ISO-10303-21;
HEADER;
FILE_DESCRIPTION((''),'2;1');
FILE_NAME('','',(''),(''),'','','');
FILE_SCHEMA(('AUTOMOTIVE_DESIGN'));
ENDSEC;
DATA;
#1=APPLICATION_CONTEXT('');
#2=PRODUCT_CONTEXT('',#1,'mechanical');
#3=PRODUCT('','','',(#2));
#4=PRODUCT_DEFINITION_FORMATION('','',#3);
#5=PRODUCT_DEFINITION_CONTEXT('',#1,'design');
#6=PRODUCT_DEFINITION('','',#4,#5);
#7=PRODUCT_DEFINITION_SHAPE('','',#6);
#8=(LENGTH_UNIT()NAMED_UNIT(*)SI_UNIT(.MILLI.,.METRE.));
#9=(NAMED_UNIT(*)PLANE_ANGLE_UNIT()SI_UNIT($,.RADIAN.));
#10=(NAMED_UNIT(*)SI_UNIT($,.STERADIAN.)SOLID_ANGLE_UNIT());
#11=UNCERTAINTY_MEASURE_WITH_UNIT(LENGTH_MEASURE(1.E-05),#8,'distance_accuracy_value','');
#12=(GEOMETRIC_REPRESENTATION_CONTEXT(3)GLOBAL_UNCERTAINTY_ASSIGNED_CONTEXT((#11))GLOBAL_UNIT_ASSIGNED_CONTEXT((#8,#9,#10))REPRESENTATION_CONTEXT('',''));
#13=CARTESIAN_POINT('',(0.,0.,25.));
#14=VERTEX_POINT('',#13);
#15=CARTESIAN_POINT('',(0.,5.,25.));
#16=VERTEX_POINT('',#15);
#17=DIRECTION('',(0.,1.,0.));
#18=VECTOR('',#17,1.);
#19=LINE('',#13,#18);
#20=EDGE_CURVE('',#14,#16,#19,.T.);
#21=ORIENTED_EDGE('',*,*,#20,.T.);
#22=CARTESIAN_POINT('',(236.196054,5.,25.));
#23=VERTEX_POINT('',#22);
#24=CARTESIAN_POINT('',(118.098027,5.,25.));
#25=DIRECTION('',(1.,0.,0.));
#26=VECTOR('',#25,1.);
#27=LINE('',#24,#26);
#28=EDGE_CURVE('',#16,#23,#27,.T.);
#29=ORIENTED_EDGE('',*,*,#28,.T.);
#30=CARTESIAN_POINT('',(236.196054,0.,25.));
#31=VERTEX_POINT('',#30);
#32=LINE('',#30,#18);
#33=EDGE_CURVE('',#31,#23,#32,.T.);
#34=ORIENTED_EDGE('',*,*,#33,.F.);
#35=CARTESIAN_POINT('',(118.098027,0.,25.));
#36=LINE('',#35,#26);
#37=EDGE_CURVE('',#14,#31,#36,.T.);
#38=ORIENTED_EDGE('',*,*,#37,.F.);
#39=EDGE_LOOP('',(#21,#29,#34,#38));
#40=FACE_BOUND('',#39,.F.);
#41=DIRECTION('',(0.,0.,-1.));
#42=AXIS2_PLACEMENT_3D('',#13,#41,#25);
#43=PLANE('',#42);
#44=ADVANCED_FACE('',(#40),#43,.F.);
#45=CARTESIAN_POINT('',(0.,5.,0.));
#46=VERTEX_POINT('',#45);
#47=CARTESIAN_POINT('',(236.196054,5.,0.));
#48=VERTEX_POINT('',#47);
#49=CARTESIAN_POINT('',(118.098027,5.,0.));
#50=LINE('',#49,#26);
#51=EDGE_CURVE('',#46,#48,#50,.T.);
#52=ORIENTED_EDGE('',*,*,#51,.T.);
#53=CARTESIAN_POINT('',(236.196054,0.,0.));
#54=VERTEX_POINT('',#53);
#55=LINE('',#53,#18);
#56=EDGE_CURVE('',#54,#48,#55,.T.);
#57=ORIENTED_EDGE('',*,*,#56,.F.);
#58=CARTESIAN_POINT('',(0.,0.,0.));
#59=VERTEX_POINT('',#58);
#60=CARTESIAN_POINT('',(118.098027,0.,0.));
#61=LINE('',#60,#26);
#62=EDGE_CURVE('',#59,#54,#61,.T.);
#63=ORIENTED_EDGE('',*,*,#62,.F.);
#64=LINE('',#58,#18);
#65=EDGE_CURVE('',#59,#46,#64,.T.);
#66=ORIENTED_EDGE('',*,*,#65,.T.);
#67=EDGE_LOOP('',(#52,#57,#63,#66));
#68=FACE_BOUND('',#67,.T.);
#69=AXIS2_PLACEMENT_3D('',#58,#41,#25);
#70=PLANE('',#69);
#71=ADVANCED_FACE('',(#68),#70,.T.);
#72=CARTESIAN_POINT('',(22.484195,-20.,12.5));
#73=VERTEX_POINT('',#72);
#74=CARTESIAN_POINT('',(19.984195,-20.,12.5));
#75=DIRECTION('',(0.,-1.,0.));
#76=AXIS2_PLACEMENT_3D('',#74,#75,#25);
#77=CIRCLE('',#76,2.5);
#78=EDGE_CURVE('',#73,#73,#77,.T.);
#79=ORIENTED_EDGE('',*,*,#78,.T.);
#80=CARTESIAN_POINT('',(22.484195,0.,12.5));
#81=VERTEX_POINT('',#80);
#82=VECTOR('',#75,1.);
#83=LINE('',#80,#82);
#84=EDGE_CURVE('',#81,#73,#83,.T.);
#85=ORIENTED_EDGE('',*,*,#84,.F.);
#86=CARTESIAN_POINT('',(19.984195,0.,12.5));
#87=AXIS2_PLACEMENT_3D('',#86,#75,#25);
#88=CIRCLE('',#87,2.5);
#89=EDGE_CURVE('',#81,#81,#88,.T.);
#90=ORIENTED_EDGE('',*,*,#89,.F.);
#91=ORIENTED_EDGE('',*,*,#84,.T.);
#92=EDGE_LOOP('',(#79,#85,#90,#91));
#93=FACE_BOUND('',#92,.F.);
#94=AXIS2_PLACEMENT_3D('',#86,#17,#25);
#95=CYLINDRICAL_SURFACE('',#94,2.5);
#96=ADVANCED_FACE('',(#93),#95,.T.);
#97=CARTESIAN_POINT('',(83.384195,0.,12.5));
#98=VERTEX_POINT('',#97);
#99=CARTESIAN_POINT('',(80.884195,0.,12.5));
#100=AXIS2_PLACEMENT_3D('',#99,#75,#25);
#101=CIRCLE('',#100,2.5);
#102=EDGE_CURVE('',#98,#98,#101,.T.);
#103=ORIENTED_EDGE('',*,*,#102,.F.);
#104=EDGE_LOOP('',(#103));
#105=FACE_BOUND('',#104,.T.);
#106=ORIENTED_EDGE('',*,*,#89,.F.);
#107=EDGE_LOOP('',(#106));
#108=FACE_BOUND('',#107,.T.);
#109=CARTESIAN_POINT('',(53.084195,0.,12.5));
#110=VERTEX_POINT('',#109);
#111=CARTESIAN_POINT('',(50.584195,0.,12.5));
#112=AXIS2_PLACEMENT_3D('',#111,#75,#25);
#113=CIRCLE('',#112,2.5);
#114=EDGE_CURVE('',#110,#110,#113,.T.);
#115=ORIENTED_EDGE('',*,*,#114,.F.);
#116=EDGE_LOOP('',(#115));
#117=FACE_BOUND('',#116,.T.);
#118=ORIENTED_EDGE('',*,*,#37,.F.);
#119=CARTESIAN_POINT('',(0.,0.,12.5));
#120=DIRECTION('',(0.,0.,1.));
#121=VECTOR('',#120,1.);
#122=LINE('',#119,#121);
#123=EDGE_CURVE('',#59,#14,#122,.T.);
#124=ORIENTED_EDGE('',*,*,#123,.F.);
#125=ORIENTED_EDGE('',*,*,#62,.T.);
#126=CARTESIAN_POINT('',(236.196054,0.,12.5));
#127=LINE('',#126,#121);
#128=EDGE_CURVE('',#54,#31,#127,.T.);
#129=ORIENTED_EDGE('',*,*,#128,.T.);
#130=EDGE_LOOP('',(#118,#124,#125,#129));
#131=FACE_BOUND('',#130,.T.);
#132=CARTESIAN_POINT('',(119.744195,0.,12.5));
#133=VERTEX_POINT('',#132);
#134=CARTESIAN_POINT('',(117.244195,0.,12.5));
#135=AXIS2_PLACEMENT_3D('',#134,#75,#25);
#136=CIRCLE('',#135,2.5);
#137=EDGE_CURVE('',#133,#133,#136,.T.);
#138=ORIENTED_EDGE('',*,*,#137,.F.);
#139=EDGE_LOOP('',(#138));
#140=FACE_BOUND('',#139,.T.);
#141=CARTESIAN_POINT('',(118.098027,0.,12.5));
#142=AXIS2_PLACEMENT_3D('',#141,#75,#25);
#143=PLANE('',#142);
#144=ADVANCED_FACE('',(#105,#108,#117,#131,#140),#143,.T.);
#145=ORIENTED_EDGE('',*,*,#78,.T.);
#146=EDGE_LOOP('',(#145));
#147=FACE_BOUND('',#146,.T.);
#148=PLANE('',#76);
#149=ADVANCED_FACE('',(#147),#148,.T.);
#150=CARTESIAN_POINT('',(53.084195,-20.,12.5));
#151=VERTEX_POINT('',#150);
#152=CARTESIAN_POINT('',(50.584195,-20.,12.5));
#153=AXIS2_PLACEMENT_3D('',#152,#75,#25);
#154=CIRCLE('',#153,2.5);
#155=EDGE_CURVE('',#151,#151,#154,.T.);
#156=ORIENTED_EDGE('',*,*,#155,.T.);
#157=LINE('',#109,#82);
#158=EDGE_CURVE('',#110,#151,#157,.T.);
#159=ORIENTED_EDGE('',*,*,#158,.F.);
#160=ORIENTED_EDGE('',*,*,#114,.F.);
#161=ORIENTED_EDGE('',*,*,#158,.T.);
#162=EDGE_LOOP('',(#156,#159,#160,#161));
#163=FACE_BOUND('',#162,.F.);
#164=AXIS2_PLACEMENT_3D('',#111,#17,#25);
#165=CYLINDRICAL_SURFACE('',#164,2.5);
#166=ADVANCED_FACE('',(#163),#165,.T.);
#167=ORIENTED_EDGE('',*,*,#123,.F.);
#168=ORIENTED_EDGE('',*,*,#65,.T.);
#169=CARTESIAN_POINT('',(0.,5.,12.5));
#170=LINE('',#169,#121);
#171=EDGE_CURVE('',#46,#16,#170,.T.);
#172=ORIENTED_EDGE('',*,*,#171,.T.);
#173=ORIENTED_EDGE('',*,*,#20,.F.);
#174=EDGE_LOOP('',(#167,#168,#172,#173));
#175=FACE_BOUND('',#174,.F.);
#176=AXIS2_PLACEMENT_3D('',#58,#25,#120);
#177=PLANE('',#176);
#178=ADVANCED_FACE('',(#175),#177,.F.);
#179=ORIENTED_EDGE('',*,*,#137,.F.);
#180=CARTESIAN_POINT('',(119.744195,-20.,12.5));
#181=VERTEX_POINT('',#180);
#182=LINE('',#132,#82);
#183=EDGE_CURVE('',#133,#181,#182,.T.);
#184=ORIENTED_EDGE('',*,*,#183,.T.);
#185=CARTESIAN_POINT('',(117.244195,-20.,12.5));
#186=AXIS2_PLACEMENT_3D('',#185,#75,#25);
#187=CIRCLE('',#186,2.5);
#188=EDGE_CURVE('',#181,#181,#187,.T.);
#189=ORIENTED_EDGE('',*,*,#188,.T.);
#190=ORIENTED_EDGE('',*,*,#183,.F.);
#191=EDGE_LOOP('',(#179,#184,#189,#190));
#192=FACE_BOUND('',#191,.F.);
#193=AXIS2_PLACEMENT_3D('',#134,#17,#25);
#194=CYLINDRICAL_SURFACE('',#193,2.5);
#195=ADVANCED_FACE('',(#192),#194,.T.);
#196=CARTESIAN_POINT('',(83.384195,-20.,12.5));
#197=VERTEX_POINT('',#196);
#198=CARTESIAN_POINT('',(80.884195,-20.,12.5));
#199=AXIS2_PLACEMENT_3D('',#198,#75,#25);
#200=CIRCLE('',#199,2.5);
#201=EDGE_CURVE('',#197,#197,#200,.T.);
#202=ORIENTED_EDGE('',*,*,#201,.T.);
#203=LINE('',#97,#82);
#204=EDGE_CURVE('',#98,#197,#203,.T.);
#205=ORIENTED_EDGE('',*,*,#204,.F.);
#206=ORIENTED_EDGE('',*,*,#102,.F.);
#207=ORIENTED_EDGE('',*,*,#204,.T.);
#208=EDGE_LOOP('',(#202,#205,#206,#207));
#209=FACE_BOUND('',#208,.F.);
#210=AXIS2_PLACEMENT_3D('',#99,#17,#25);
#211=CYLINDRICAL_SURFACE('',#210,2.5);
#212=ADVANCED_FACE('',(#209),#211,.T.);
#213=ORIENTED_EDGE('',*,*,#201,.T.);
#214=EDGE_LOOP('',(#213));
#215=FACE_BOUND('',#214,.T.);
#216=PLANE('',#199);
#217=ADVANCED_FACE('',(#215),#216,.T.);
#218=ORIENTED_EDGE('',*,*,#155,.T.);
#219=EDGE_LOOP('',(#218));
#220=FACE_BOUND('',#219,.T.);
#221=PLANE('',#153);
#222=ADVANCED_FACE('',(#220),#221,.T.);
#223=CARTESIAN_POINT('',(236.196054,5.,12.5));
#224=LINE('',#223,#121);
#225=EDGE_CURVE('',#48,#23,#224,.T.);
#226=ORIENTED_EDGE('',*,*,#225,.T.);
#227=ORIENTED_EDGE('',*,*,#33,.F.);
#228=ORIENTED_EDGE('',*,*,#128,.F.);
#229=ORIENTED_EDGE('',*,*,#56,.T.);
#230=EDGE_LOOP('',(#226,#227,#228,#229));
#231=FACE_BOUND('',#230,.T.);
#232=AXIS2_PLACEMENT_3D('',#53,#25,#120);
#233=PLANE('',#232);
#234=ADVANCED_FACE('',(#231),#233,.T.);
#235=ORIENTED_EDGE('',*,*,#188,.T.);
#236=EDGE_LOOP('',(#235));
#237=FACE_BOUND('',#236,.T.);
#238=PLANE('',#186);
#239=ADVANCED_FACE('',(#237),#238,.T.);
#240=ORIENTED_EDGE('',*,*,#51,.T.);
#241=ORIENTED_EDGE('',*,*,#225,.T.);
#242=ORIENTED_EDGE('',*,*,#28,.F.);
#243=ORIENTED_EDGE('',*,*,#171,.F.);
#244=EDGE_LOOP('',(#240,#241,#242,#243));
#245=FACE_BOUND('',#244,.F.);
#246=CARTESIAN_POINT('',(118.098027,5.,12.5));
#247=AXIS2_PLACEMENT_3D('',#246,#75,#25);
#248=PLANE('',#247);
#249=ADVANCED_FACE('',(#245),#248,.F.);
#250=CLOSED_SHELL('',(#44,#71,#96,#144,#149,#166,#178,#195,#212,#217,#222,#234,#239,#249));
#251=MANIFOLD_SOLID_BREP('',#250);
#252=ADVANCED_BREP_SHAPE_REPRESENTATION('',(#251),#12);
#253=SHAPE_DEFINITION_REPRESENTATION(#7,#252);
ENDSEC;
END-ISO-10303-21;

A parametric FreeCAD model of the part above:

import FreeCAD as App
import Part
import Sketcher
from FreeCAD import Vector

doc = App.newDocument("Part")
body = doc.addObject("PartDesign::Body", "Body")

sketch1 = body.newObject("Sketcher::SketchObject", "Sketch")
sketch1.AttachmentSupport = (doc.getObject("XZ_Plane"), [""])
sketch1.MapMode = "FlatFace"
sketch1.addGeometry(Part.LineSegment(Vector(0, 25, 0), Vector(0, 0, 0)), False)
sketch1.addGeometry(Part.LineSegment(Vector(0, 0, 0), Vector(236, 0, 0)), False)
sketch1.addGeometry(Part.LineSegment(Vector(236, 0, 0), Vector(236, 25, 0)), False)
sketch1.addGeometry(Part.LineSegment(Vector(236, 25, 0), Vector(0, 25, 0)), False)
sketch1.addConstraint(Sketcher.Constraint("Coincident", 0, 2, 1, 1))
sketch1.addConstraint(Sketcher.Constraint("Coincident", 1, 2, 2, 1))
sketch1.addConstraint(Sketcher.Constraint("Coincident", 2, 2, 3, 1))
sketch1.addConstraint(Sketcher.Constraint("Coincident", 3, 2, 0, 1))
sketch1.addConstraint(Sketcher.Constraint("Vertical", 0))
sketch1.addConstraint(Sketcher.Constraint("Horizontal", 1))
sketch1.addConstraint(Sketcher.Constraint("Vertical", 2))
sketch1.addConstraint(Sketcher.Constraint("Horizontal", 3))
sketch1.addConstraint(Sketcher.Constraint("Coincident", 0, 2, -1, 1))
sketch1.addConstraint(Sketcher.Constraint("DistanceY", 0, 2, 0, 1, 25.0))
sketch1.addConstraint(Sketcher.Constraint("DistanceX", 1, 1, 1, 2, 236.196054))
pad1 = body.newObject("PartDesign::Pad", "Pad")
pad1.Profile = sketch1
pad1.Length = 5
pad1.Reversed = True

sketch2 = body.newObject("Sketcher::SketchObject", "Sketch001")
sketch2.AttachmentSupport = (doc.getObject("XZ_Plane"), [""])
sketch2.MapMode = "FlatFace"
sketch2.addGeometry(Part.Circle(Vector(20, 12.5, 0), Vector(0, 0, 1), 2.5), False)
sketch2.addGeometry(Part.Circle(Vector(50.6, 12.5, 0), Vector(0, 0, 1), 2.5), False)
sketch2.addGeometry(Part.Circle(Vector(80.9, 12.5, 0), Vector(0, 0, 1), 2.5), False)
sketch2.addGeometry(Part.Circle(Vector(117.2, 12.5, 0), Vector(0, 0, 1), 2.5), False)
sketch2.addConstraint(Sketcher.Constraint("Equal", 0, 1))
sketch2.addConstraint(Sketcher.Constraint("Equal", 1, 2))
sketch2.addConstraint(Sketcher.Constraint("Equal", 2, 3))
sketch2.addConstraint(Sketcher.Constraint("Horizontal", 0, 3, 1, 3))
sketch2.addConstraint(Sketcher.Constraint("Horizontal", 1, 3, 2, 3))
sketch2.addConstraint(Sketcher.Constraint("Horizontal", 2, 3, 3, 3))
sketch2.addConstraint(Sketcher.Constraint("Diameter", 0, 5.0))
sketch2.addConstraint(Sketcher.Constraint("DistanceY", -1, 1, 0, 3, 12.5))
sketch2.addConstraint(Sketcher.Constraint("DistanceX", 0, 3, 1, 3, 30.6))
sketch2.addConstraint(Sketcher.Constraint("DistanceX", 1, 3, 2, 3, 30.3))
sketch2.addConstraint(Sketcher.Constraint("DistanceX", 2, 3, 3, 3, 36.36))
sketch2.addConstraint(Sketcher.Constraint("DistanceX", -1, 1, 0, 3, 19.984195))
pad2 = body.newObject("PartDesign::Pad", "Pad001")
pad2.Profile = sketch2
pad2.Length = 20

doc.recompute()
